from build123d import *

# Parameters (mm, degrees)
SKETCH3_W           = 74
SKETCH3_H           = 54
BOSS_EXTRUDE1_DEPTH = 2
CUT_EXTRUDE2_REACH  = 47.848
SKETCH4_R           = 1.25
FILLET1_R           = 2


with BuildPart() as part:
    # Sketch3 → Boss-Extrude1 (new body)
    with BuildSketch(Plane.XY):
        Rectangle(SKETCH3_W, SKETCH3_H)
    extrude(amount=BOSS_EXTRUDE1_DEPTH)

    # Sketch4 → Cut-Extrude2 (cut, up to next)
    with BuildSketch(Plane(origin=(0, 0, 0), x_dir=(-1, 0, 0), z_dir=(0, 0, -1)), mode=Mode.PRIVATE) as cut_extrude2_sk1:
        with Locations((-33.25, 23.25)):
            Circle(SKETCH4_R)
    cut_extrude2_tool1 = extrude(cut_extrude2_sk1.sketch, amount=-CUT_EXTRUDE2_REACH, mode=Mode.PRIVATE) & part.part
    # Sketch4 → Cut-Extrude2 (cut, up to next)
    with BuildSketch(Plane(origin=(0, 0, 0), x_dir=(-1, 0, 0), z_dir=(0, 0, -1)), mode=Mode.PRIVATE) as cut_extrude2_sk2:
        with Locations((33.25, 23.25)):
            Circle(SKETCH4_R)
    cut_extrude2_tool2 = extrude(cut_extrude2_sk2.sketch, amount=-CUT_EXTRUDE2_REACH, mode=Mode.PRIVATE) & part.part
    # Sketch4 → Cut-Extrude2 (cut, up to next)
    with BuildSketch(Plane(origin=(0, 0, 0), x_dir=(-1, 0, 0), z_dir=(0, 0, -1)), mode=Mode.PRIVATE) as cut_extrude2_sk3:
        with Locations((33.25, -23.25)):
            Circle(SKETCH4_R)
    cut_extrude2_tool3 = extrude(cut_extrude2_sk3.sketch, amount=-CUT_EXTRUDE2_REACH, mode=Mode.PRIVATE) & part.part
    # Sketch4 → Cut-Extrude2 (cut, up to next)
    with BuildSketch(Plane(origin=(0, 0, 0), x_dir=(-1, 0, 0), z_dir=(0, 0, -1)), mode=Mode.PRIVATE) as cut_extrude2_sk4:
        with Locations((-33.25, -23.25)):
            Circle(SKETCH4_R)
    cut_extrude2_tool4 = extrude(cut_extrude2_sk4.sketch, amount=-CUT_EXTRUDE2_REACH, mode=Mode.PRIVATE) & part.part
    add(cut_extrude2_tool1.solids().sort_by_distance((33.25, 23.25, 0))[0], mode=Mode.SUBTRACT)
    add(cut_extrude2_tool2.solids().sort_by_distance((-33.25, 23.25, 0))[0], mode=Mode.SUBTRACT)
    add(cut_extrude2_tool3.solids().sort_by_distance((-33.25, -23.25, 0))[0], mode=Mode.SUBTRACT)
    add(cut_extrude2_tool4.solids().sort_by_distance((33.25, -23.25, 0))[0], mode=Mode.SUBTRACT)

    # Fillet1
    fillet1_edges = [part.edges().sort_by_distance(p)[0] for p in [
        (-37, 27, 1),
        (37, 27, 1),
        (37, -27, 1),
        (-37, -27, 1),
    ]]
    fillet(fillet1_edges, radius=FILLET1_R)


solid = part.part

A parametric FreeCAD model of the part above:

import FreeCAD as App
import Part
import Sketcher

V = App.Vector
Q = App.Units.Quantity


def edges_at(feature, points):
    """Names of the edges that pass closest to the given points."""
    edges = feature.Shape.Edges
    near = lambda p: min(range(len(edges)), key=lambda i: edges[i].distToShape(Part.Vertex(*p))[0])
    return sorted({f"Edge{near(p) + 1}" for p in points})


def add_polygon(sketch, points):
    """Adds a closed chain of lines whose ends are joined by coincident constraints."""
    first, n = sketch.GeometryCount, len(points)
    for a, b in zip(points, points[1:] + points[:1]):
        sketch.addGeometry(Part.LineSegment(App.Vector(*a, 0), App.Vector(*b, 0)), False)
    for i in range(n):
        sketch.addConstraint(Sketcher.Constraint("Coincident", first + i, 2, first + (i + 1) % n, 1))

doc = App.newDocument("Part")
body = doc.addObject("PartDesign::Body", "Body")

# Sketch on XY plane
sketch1 = body.newObject("Sketcher::SketchObject", "Sketch")
sketch1.AttachmentSupport = (doc.getObject("XY_Plane"), [""])
sketch1.MapMode = "FlatFace"
add_polygon(sketch1, [(-37, 27), (-37, -27), (37, -27), (37, 27)])  # lines 0-3
sketch1.addConstraint(Sketcher.Constraint("Vertical", 0))
sketch1.addConstraint(Sketcher.Constraint("Horizontal", 1))
sketch1.addConstraint(Sketcher.Constraint("Vertical", 2))
sketch1.addConstraint(Sketcher.Constraint("Horizontal", 3))
sketch1.addConstraint(Sketcher.Constraint("Symmetric", 0, 2, 2, 2, -1, 1))
sketch1.addConstraint(Sketcher.Constraint("DistanceX", 1, 1, 1, 2, Q("74 mm")))
sketch1.addConstraint(Sketcher.Constraint("DistanceY", 0, 2, 0, 1, Q("54 mm")))
pad1 = body.newObject("PartDesign::Pad", "Pad")
pad1.Profile = sketch1
pad1.Length = 2

# Sketch on XY plane
sketch2 = body.newObject("Sketcher::SketchObject", "Sketch001")
sketch2.AttachmentSupport = (doc.getObject("XY_Plane"), [""])
sketch2.MapMode = "FlatFace"
sketch2.addGeometry(Part.Circle(V(33.2, 23.2, 0), V(0, 0, 1), 1.2), False)
sketch2.addConstraint(Sketcher.Constraint("Diameter", 0, Q("2.5 mm")))
sketch2.addConstraint(Sketcher.Constraint("DistanceX", -1, 1, 0, 3, Q("33.25 mm")))
sketch2.addConstraint(Sketcher.Constraint("DistanceY", -1, 1, 0, 3, Q("23.25 mm")))
pocket1 = body.newObject("PartDesign::Pocket", "Pocket")
pocket1.Profile = sketch2
pocket1.Type = "UpToFirst"
pocket1.Reversed = True

# Sketch on XY plane
sketch3 = body.newObject("Sketcher::SketchObject", "Sketch002")
sketch3.AttachmentSupport = (doc.getObject("XY_Plane"), [""])
sketch3.MapMode = "FlatFace"
sketch3.addGeometry(Part.Circle(V(-33.2, 23.2, 0), V(0, 0, 1), 1.2), False)
sketch3.addConstraint(Sketcher.Constraint("Diameter", 0, Q("2.5 mm")))
sketch3.addConstraint(Sketcher.Constraint("DistanceX", 0, 3, -1, 1, Q("33.25 mm")))
sketch3.addConstraint(Sketcher.Constraint("DistanceY", -1, 1, 0, 3, Q("23.25 mm")))
pocket2 = body.newObject("PartDesign::Pocket", "Pocket001")
pocket2.Profile = sketch3
pocket2.Type = "UpToFirst"
pocket2.Reversed = True

# Sketch on XY plane
sketch4 = body.newObject("Sketcher::SketchObject", "Sketch003")
sketch4.AttachmentSupport = (doc.getObject("XY_Plane"), [""])
sketch4.MapMode = "FlatFace"
sketch4.addGeometry(Part.Circle(V(-33.2, -23.2, 0), V(0, 0, 1), 1.2), False)
sketch4.addConstraint(Sketcher.Constraint("Diameter", 0, Q("2.5 mm")))
sketch4.addConstraint(Sketcher.Constraint("DistanceX", 0, 3, -1, 1, Q("33.25 mm")))
sketch4.addConstraint(Sketcher.Constraint("DistanceY", 0, 3, -1, 1, Q("23.25 mm")))
pocket3 = body.newObject("PartDesign::Pocket", "Pocket002")
pocket3.Profile = sketch4
pocket3.Type = "UpToFirst"
pocket3.Reversed = True

# Sketch on XY plane
sketch5 = body.newObject("Sketcher::SketchObject", "Sketch004")
sketch5.AttachmentSupport = (doc.getObject("XY_Plane"), [""])
sketch5.MapMode = "FlatFace"
sketch5.addGeometry(Part.Circle(V(33.2, -23.2, 0), V(0, 0, 1), 1.2), False)
sketch5.addConstraint(Sketcher.Constraint("Diameter", 0, Q("2.5 mm")))
sketch5.addConstraint(Sketcher.Constraint("DistanceX", -1, 1, 0, 3, Q("33.25 mm")))
sketch5.addConstraint(Sketcher.Constraint("DistanceY", 0, 3, -1, 1, Q("23.25 mm")))
pocket4 = body.newObject("PartDesign::Pocket", "Pocket003")
pocket4.Profile = sketch5
pocket4.Type = "UpToFirst"
pocket4.Reversed = True
doc.recompute()

fillet = body.newObject("PartDesign::Fillet", "Fillet")
fillet.Base = (pocket4, edges_at(pocket4, [
    (-37, 27, 1),
    (37, 27, 1),
    (37, -27, 1),
    (-37, -27, 1),
]))
fillet.Radius = 2

doc.recompute()
